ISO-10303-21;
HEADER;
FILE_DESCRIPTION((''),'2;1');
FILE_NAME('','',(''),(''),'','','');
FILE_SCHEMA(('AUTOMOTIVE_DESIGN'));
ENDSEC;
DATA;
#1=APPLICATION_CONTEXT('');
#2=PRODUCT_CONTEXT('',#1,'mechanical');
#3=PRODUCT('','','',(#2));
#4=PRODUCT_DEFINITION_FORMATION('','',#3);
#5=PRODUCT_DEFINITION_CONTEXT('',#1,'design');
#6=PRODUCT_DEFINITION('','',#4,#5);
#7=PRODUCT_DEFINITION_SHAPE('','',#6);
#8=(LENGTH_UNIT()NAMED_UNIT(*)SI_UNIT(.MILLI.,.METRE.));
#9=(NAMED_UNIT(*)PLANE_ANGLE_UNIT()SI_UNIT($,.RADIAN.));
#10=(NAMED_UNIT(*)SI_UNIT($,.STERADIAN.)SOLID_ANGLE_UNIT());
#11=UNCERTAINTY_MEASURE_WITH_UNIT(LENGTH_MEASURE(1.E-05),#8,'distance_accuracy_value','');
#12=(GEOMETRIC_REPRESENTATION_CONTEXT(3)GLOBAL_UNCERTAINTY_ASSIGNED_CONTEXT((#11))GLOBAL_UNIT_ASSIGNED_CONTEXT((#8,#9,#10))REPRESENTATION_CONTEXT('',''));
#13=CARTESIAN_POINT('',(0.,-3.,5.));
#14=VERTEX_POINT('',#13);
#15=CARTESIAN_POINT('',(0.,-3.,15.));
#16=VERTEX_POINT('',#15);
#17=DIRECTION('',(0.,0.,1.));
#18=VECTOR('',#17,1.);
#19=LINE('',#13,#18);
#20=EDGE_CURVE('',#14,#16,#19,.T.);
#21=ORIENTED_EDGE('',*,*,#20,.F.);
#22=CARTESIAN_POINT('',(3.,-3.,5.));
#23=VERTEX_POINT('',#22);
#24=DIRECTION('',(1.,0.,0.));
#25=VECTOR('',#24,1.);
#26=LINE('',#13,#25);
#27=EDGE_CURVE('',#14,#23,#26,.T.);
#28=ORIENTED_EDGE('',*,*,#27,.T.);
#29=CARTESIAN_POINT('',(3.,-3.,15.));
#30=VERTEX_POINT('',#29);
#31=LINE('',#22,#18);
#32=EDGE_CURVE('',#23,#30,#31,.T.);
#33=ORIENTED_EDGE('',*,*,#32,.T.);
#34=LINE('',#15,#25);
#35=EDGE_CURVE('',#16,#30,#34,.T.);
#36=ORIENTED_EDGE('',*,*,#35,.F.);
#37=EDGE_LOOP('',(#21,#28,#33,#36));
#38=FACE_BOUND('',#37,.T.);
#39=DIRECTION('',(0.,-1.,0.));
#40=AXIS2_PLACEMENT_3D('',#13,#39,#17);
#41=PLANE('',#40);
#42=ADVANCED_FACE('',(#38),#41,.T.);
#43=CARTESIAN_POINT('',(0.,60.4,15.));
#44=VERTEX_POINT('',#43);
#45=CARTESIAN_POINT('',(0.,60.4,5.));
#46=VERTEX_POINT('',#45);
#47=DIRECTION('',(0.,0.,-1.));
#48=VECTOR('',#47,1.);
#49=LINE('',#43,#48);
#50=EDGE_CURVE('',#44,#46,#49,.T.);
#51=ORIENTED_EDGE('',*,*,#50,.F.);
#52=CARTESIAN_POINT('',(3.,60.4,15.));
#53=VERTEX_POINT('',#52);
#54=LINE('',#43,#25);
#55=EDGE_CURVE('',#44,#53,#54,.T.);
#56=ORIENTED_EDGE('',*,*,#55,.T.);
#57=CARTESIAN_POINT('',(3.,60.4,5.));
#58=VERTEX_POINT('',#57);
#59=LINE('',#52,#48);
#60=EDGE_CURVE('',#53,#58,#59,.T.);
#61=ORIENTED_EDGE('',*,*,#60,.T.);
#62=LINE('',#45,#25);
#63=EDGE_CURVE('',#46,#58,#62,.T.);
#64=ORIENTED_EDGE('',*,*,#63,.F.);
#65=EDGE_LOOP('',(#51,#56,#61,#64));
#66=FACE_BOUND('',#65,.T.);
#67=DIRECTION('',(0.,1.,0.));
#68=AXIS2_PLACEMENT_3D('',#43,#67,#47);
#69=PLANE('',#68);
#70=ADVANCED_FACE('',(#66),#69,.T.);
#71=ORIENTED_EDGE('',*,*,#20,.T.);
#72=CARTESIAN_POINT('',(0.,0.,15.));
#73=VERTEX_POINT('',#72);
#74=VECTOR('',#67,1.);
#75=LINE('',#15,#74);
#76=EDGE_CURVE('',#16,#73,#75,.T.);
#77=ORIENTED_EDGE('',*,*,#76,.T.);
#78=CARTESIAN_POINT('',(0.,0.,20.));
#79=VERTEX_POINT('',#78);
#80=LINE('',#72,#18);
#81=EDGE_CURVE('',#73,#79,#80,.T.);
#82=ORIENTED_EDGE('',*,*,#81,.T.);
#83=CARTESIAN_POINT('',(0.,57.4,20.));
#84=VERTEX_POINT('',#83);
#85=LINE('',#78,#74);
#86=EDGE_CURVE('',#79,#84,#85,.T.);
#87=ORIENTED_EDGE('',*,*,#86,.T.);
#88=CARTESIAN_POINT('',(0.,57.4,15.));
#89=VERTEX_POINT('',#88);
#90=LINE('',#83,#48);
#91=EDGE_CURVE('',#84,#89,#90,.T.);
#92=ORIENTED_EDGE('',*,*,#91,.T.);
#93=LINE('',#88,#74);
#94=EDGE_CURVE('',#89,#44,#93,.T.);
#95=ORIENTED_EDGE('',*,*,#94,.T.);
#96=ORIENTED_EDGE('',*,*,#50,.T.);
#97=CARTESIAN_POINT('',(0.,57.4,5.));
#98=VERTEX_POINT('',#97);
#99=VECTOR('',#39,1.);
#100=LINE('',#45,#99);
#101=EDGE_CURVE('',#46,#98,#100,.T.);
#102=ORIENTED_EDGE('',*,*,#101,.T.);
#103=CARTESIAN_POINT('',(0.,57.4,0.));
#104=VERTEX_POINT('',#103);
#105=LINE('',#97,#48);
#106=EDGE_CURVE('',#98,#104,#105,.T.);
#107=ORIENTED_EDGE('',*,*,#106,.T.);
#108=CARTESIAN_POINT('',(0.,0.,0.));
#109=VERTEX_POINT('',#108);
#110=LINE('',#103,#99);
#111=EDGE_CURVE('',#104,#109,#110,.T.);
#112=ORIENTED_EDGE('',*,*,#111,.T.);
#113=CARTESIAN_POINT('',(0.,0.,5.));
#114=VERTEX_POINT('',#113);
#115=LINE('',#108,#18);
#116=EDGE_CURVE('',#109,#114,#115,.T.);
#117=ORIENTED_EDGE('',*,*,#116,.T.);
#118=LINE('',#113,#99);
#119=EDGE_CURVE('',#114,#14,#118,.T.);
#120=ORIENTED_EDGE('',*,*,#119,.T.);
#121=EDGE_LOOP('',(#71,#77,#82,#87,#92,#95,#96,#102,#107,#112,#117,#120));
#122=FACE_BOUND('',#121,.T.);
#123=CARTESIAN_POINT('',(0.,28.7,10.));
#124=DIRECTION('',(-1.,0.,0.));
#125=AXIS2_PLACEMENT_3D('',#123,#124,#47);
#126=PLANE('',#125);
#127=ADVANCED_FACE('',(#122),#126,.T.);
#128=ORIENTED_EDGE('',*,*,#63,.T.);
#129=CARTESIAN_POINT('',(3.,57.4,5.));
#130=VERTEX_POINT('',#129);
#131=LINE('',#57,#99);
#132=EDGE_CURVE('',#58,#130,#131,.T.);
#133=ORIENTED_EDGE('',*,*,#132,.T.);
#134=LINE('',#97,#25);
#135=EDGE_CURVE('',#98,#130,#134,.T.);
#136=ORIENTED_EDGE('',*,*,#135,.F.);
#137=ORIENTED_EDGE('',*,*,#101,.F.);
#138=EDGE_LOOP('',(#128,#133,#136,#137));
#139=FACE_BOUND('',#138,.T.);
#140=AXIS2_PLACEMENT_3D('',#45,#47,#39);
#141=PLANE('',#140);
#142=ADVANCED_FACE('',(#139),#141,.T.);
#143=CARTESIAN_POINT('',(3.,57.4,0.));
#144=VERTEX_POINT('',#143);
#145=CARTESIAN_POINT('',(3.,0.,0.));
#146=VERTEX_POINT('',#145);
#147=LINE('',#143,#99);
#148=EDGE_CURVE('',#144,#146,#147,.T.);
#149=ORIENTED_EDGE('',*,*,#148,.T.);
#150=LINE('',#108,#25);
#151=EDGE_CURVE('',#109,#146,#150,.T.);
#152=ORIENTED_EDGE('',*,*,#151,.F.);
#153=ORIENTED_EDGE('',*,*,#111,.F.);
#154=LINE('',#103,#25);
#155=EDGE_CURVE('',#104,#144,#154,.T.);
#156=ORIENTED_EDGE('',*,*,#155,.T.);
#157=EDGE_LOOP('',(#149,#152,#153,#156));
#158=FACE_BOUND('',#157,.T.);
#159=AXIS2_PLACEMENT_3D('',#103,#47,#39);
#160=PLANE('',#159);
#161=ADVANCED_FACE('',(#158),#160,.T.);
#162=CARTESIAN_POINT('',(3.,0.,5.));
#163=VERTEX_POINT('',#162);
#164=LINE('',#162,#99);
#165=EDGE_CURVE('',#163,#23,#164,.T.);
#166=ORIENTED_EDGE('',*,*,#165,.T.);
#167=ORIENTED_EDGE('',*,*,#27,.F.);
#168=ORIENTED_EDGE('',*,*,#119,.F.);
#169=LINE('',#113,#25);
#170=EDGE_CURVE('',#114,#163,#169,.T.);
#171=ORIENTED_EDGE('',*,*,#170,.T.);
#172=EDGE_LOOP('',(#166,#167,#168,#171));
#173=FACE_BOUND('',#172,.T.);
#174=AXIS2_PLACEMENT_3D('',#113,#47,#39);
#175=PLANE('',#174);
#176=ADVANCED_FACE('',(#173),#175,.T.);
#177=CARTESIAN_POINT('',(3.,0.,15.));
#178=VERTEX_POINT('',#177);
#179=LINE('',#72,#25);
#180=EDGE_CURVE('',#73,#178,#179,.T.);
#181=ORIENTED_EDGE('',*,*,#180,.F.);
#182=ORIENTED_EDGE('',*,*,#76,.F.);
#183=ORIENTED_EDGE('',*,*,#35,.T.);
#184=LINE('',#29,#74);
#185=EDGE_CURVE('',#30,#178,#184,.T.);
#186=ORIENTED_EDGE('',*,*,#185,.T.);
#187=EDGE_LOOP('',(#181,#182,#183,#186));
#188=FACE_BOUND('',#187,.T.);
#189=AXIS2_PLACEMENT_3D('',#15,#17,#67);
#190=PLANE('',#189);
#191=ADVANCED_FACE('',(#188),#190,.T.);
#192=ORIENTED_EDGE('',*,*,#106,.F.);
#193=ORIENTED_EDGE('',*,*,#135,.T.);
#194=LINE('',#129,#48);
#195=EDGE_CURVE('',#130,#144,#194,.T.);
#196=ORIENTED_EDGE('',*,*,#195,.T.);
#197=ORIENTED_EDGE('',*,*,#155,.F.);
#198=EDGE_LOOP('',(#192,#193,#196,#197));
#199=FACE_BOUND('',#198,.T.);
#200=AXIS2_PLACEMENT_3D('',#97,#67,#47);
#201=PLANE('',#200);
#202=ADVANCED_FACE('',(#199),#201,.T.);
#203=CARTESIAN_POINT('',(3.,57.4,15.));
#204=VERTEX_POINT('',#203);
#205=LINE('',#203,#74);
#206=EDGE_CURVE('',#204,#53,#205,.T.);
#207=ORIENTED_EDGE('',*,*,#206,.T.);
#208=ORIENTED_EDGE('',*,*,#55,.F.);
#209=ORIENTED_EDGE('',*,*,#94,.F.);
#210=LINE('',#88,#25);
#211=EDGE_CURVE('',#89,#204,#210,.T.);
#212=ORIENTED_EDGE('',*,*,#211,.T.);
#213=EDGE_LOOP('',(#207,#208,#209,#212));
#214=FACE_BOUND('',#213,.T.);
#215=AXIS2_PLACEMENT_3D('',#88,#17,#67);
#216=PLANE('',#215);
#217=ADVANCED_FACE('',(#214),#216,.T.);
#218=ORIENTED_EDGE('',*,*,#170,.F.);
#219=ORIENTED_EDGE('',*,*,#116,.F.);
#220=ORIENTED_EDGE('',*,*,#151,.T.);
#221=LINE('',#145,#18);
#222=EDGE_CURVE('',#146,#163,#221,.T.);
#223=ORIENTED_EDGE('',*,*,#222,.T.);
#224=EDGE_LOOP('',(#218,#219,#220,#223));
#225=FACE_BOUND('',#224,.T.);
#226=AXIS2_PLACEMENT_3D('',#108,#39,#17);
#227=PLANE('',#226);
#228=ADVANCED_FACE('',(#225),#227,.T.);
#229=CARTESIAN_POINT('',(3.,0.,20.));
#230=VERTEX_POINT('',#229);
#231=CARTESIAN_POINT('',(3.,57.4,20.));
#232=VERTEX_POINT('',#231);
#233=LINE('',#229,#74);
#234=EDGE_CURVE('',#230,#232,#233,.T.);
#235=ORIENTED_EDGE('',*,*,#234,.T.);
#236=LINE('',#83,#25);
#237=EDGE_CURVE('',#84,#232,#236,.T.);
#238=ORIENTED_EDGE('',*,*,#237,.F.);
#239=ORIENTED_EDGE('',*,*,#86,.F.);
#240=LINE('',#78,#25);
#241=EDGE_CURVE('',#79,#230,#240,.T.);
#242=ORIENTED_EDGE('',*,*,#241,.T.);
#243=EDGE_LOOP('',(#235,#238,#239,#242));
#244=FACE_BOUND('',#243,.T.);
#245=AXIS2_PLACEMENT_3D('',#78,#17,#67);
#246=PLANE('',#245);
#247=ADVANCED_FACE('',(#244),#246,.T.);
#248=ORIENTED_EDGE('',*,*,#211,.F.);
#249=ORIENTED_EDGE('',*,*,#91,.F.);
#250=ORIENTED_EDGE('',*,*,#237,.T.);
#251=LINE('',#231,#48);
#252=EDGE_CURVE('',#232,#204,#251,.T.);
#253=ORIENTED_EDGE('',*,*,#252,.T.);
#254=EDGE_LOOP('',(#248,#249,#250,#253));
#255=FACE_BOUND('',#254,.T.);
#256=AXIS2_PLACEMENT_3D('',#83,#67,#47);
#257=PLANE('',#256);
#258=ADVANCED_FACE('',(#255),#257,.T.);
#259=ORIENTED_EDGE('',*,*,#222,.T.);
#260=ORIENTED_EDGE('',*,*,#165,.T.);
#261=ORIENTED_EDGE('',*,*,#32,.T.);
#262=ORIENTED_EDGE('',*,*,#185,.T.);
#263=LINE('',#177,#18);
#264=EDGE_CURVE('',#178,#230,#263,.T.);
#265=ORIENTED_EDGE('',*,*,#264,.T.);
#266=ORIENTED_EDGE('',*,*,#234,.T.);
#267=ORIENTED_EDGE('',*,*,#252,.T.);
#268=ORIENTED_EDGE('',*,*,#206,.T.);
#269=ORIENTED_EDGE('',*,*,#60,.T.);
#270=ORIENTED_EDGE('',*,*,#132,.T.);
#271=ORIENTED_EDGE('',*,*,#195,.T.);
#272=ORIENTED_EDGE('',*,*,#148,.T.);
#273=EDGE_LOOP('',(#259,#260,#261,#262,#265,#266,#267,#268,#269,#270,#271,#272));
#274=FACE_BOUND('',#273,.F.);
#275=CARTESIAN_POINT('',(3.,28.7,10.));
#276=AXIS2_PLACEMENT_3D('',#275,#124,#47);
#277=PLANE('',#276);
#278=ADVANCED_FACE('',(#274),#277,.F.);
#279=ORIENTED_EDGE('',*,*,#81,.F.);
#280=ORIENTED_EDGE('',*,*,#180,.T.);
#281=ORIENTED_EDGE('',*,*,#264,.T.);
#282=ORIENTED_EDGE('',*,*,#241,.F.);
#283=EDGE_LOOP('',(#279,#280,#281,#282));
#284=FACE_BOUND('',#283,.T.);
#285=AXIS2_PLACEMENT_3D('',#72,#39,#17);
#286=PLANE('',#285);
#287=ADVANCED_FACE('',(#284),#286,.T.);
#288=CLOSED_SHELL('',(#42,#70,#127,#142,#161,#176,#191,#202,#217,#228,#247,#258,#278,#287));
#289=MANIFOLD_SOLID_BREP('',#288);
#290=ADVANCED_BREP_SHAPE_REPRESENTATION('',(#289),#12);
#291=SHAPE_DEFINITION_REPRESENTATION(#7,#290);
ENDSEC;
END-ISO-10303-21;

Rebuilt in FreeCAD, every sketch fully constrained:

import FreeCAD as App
import Part
import Sketcher
from FreeCAD import Vector

doc = App.newDocument("Part")
params = doc.addObject("Spreadsheet::Sheet", "Params")
for row, (alias, value) in enumerate([
    ("sketch1_width", "57.4 mm"),
    ("sketch1_height", "5 mm"),
    ("sketch1_height2", "10 mm"),
    ("pad1_length", "3 mm"),
], start=1):
    params.set(f"A{row}", alias)
    params.set(f"B{row}", "=" + value)
    params.setAlias(f"B{row}", alias)

body = doc.addObject("PartDesign::Body", "Body")

# Sketch on YZ plane
sketch1 = doc.addObject("Sketcher::SketchObject", "Sketch")
body.addObject(sketch1)
sketch1.AttachmentSupport = (doc.YZ_Plane, [""])
sketch1.MapMode = "FlatFace"
sketch1.addGeometry([
    Part.LineSegment(Vector(57.4, 20, 0), Vector(0, 20, 0)),  # 0
    Part.LineSegment(Vector(0, 20, 0), Vector(0, 15, 0)),  # 1
    Part.LineSegment(Vector(0, 15, 0), Vector(-3, 15, 0)),  # 2
    Part.LineSegment(Vector(-3, 15, 0), Vector(-3, 5, 0)),  # 3
    Part.LineSegment(Vector(-3, 5, 0), Vector(0, 5, 0)),  # 4
    Part.LineSegment(Vector(0, 5, 0), Vector(0, 0, 0)),  # 5
    Part.LineSegment(Vector(0, 0, 0), Vector(57.4, 0, 0)),  # 6
    Part.LineSegment(Vector(57.4, 0, 0), Vector(57.4, 5, 0)),  # 7
    Part.LineSegment(Vector(57.4, 5, 0), Vector(60.4, 5, 0)),  # 8
    Part.LineSegment(Vector(60.4, 5, 0), Vector(60.4, 15, 0)),  # 9
    Part.LineSegment(Vector(60.4, 15, 0), Vector(57.4, 15, 0)),  # 10
    Part.LineSegment(Vector(57.4, 15, 0), Vector(57.4, 20, 0)),  # 11
], False)
sketch1.addConstraint([
    Sketcher.Constraint("Coincident", 0, 2, 1, 1),
    Sketcher.Constraint("Coincident", 1, 2, 2, 1),
    Sketcher.Constraint("Coincident", 2, 2, 3, 1),
    Sketcher.Constraint("Coincident", 3, 2, 4, 1),
    Sketcher.Constraint("Coincident", 4, 2, 5, 1),
    Sketcher.Constraint("Coincident", 5, 2, 6, 1),
    Sketcher.Constraint("Coincident", 6, 2, 7, 1),
    Sketcher.Constraint("Coincident", 7, 2, 8, 1),
    Sketcher.Constraint("Coincident", 8, 2, 9, 1),
    Sketcher.Constraint("Coincident", 9, 2, 10, 1),
    Sketcher.Constraint("Coincident", 10, 2, 11, 1),
    Sketcher.Constraint("Coincident", 11, 2, 0, 1),
    Sketcher.Constraint("Horizontal", 0),
    Sketcher.Constraint("Vertical", 1),
    Sketcher.Constraint("Horizontal", 2),
    Sketcher.Constraint("Vertical", 3),
    Sketcher.Constraint("Horizontal", 4),
    Sketcher.Constraint("Vertical", 5),
    Sketcher.Constraint("Horizontal", 6),
    Sketcher.Constraint("Vertical", 7),
    Sketcher.Constraint("Horizontal", 8),
    Sketcher.Constraint("Vertical", 9),
    Sketcher.Constraint("Horizontal", 10),
    Sketcher.Constraint("Vertical", 11),
    Sketcher.Constraint("Coincident", 5, 2, -1, 1),
    Sketcher.Constraint("PointOnObject", 0, 2, -2),
    Sketcher.Constraint("Horizontal", 4, 2, 7, 2),
    Sketcher.Constraint("Horizontal", 2, 2, 9, 2),
    Sketcher.Constraint("Vertical", 7, 2, 10, 2),
    Sketcher.Constraint("Equal", 4, 8),
    Sketcher.Constraint("Equal", 1, 5),
    Sketcher.Constraint("DistanceX", 0, 2, 0, 1, 57.4),
    Sketcher.Constraint("DistanceX", -1, 1, 8, 2, 60.4),
    Sketcher.Constraint("DistanceY", 1, 2, 1, 1, 5.0),
    Sketcher.Constraint("DistanceY", 3, 2, 3, 1, 10.0),
])
sketch1.setExpression("Constraints[31]", "Params.sketch1_width")
sketch1.setExpression("Constraints[33]", "Params.sketch1_height")
sketch1.setExpression("Constraints[34]", "Params.sketch1_height2")
pad1 = doc.addObject("PartDesign::Pad", "Pad")
body.addObject(pad1)
pad1.Profile = sketch1
pad1.setExpression("Length", "Params.pad1_length")

doc.recompute()
